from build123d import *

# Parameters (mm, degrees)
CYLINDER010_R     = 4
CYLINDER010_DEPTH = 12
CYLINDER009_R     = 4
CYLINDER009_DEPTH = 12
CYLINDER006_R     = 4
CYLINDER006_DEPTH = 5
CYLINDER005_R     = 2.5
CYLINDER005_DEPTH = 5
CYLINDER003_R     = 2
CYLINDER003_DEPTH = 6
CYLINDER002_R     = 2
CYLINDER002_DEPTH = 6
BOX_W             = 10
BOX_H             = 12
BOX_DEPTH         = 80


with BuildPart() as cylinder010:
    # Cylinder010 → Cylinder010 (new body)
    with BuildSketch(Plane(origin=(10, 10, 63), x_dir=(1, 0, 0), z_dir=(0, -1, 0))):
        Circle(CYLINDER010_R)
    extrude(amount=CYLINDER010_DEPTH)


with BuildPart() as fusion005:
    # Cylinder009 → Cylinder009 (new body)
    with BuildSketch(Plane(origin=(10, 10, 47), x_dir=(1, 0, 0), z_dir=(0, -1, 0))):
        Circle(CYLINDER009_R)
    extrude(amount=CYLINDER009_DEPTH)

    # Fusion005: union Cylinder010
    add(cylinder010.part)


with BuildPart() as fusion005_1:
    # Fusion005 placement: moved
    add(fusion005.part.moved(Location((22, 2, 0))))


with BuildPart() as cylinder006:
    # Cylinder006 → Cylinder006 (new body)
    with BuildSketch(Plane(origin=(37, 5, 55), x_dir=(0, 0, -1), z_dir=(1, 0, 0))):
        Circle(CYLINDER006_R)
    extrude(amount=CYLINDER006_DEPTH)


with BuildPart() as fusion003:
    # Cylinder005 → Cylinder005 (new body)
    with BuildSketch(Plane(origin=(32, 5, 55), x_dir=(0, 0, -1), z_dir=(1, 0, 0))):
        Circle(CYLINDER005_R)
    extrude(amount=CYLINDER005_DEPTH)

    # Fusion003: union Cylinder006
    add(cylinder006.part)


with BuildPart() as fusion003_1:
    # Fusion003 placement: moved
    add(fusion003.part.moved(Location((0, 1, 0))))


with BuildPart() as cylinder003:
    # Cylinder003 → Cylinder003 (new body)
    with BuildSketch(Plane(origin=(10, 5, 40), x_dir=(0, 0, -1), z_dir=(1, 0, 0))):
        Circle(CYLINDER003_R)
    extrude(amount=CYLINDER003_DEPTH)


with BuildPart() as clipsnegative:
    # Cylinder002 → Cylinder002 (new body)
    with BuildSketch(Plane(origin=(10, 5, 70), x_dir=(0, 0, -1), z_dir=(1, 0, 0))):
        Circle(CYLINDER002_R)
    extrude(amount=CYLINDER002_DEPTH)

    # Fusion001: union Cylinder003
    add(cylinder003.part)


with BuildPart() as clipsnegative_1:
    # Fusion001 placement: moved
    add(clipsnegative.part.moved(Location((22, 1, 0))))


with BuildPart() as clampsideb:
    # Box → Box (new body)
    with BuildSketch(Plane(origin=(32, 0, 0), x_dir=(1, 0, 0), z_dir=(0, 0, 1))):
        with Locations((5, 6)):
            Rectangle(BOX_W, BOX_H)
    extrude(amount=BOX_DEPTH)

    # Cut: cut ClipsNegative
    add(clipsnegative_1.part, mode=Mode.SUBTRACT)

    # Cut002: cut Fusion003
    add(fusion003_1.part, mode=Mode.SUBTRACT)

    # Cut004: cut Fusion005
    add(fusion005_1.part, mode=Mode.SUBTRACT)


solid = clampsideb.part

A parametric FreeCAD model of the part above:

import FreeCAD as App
import Part
import Sketcher

V = App.Vector
Q = App.Units.Quantity


def add_polygon(sketch, points):
    """Adds a closed chain of lines whose ends are joined by coincident constraints."""
    first, n = sketch.GeometryCount, len(points)
    for a, b in zip(points, points[1:] + points[:1]):
        sketch.addGeometry(Part.LineSegment(App.Vector(*a, 0), App.Vector(*b, 0)), False)
    for i in range(n):
        sketch.addConstraint(Sketcher.Constraint("Coincident", first + i, 2, first + (i + 1) % n, 1))

doc = App.newDocument("Part")
body = doc.addObject("PartDesign::Body", "Body")

# Sketch on XZ plane
sketch1 = body.newObject("Sketcher::SketchObject", "Sketch")
sketch1.AttachmentSupport = (doc.getObject("XZ_Plane"), [""])
sketch1.MapMode = "FlatFace"
sketch1.AttachmentOffset = App.Placement(V(0, 0, -10), App.Rotation())
sketch1.addGeometry(Part.Circle(V(10, 63, 0), V(0, 0, 1), 4), False)
sketch1.addConstraint(Sketcher.Constraint("Diameter", 0, Q("8 mm")))
sketch1.addConstraint(Sketcher.Constraint("DistanceX", -1, 1, 0, 3, Q("10 mm")))
sketch1.addConstraint(Sketcher.Constraint("DistanceY", -1, 1, 0, 3, Q("63 mm")))
pad1 = body.newObject("PartDesign::Pad", "Pad")
pad1.Profile = sketch1
pad1.Length = 12
body2 = doc.addObject("PartDesign::Body", "Body001")
body2.AllowCompound = True

# Sketch on XZ plane
sketch2 = body2.newObject("Sketcher::SketchObject", "Sketch001")
sketch2.AttachmentSupport = (doc.getObject("XZ_Plane001"), [""])
sketch2.MapMode = "FlatFace"
sketch2.AttachmentOffset = App.Placement(V(0, 0, -10), App.Rotation())
sketch2.addGeometry(Part.Circle(V(10, 47, 0), V(0, 0, 1), 4), False)
sketch2.addConstraint(Sketcher.Constraint("Diameter", 0, Q("8 mm")))
sketch2.addConstraint(Sketcher.Constraint("DistanceX", -1, 1, 0, 3, Q("10 mm")))
sketch2.addConstraint(Sketcher.Constraint("DistanceY", -1, 1, 0, 3, Q("47 mm")))
pad2 = body2.newObject("PartDesign::Pad", "Pad001")
pad2.Profile = sketch2
pad2.Length = 12
doc.recompute()

boolean = body2.newObject("PartDesign::Boolean", "Boolean")
boolean.Type = "Fuse"
boolean.addObjects([body])
body3 = doc.addObject("PartDesign::Body", "Body002")
body3.AllowCompound = True
doc.recompute()

body2.Placement = App.Placement(V(22, 2, 0), App.Rotation(V(0, 0, 1), 0))
boolean2 = body3.newObject("PartDesign::Boolean", "Boolean001")
boolean2.Type = "Fuse"
boolean2.addObjects([body2])
body4 = doc.addObject("PartDesign::Body", "Body003")

# Sketch on YZ plane
sketch3 = body4.newObject("Sketcher::SketchObject", "Sketch002")
sketch3.AttachmentSupport = (doc.getObject("YZ_Plane003"), [""])
sketch3.MapMode = "FlatFace"
sketch3.AttachmentOffset = App.Placement(V(0, 0, 37), App.Rotation())
sketch3.addGeometry(Part.Circle(V(5, 55, 0), V(0, 0, 1), 4), False)
sketch3.addConstraint(Sketcher.Constraint("Diameter", 0, Q("8 mm")))
sketch3.addConstraint(Sketcher.Constraint("DistanceX", -1, 1, 0, 3, Q("5 mm")))
sketch3.addConstraint(Sketcher.Constraint("DistanceY", -1, 1, 0, 3, Q("55 mm")))
pad3 = body4.newObject("PartDesign::Pad", "Pad002")
pad3.Profile = sketch3
pad3.Length = 5
body5 = doc.addObject("PartDesign::Body", "Body004")

# Sketch on YZ plane
sketch4 = body5.newObject("Sketcher::SketchObject", "Sketch003")
sketch4.AttachmentSupport = (doc.getObject("YZ_Plane004"), [""])
sketch4.MapMode = "FlatFace"
sketch4.AttachmentOffset = App.Placement(V(0, 0, 32), App.Rotation())
sketch4.addGeometry(Part.Circle(V(5, 55, 0), V(0, 0, 1), 2.5), False)
sketch4.addConstraint(Sketcher.Constraint("Diameter", 0, Q("5 mm")))
sketch4.addConstraint(Sketcher.Constraint("DistanceX", -1, 1, 0, 3, Q("5 mm")))
sketch4.addConstraint(Sketcher.Constraint("DistanceY", -1, 1, 0, 3, Q("55 mm")))
pad4 = body5.newObject("PartDesign::Pad", "Pad003")
pad4.Profile = sketch4
pad4.Length = 5
doc.recompute()

boolean3 = body5.newObject("PartDesign::Boolean", "Boolean002")
boolean3.Type = "Fuse"
boolean3.addObjects([body4])
body6 = doc.addObject("PartDesign::Body", "Body005")
doc.recompute()

body5.Placement = App.Placement(V(0, 1, 0), App.Rotation(V(0, 0, 1), 0))
boolean4 = body6.newObject("PartDesign::Boolean", "Boolean003")
boolean4.Type = "Fuse"
boolean4.addObjects([body5])
body7 = doc.addObject("PartDesign::Body", "Body006")

# Sketch on YZ plane
sketch5 = body7.newObject("Sketcher::SketchObject", "Sketch004")
sketch5.AttachmentSupport = (doc.getObject("YZ_Plane006"), [""])
sketch5.MapMode = "FlatFace"
sketch5.AttachmentOffset = App.Placement(V(0, 0, 10), App.Rotation())
sketch5.addGeometry(Part.Circle(V(5, 40, 0), V(0, 0, 1), 2), False)
sketch5.addConstraint(Sketcher.Constraint("Diameter", 0, Q("4 mm")))
sketch5.addConstraint(Sketcher.Constraint("DistanceX", -1, 1, 0, 3, Q("5 mm")))
sketch5.addConstraint(Sketcher.Constraint("DistanceY", -1, 1, 0, 3, Q("40 mm")))
pad5 = body7.newObject("PartDesign::Pad", "Pad004")
pad5.Profile = sketch5
pad5.Length = 6
body8 = doc.addObject("PartDesign::Body", "Body007")
body8.AllowCompound = True

# Sketch on YZ plane
sketch6 = body8.newObject("Sketcher::SketchObject", "Sketch005")
sketch6.AttachmentSupport = (doc.getObject("YZ_Plane007"), [""])
sketch6.MapMode = "FlatFace"
sketch6.AttachmentOffset = App.Placement(V(0, 0, 10), App.Rotation())
sketch6.addGeometry(Part.Circle(V(5, 70, 0), V(0, 0, 1), 2), False)
sketch6.addConstraint(Sketcher.Constraint("Diameter", 0, Q("4 mm")))
sketch6.addConstraint(Sketcher.Constraint("DistanceX", -1, 1, 0, 3, Q("5 mm")))
sketch6.addConstraint(Sketcher.Constraint("DistanceY", -1, 1, 0, 3, Q("70 mm")))
pad6 = body8.newObject("PartDesign::Pad", "Pad005")
pad6.Profile = sketch6
pad6.Length = 6
doc.recompute()

boolean5 = body8.newObject("PartDesign::Boolean", "Boolean004")
boolean5.Type = "Fuse"
boolean5.addObjects([body7])
body9 = doc.addObject("PartDesign::Body", "Body008")
body9.AllowCompound = True
doc.recompute()

body8.Placement = App.Placement(V(22, 1, 0), App.Rotation(V(0, 0, 1), 0))
boolean6 = body9.newObject("PartDesign::Boolean", "Boolean005")
boolean6.Type = "Fuse"
boolean6.addObjects([body8])
body10 = doc.addObject("PartDesign::Body", "Body009")

# Sketch on XY plane
sketch7 = body10.newObject("Sketcher::SketchObject", "Sketch006")
sketch7.AttachmentSupport = (doc.getObject("XY_Plane009"), [""])
sketch7.MapMode = "FlatFace"
add_polygon(sketch7, [(32, 12), (32, 0), (42, 0), (42, 12)])  # lines 0-3
sketch7.addConstraint(Sketcher.Constraint("Vertical", 0))
sketch7.addConstraint(Sketcher.Constraint("Horizontal", 1))
sketch7.addConstraint(Sketcher.Constraint("Vertical", 2))
sketch7.addConstraint(Sketcher.Constraint("Horizontal", 3))
sketch7.addConstraint(Sketcher.Constraint("PointOnObject", 0, 2, -1))
sketch7.addConstraint(Sketcher.Constraint("DistanceX", 1, 1, 1, 2, Q("10 mm")))
sketch7.addConstraint(Sketcher.Constraint("DistanceY", 0, 2, 0, 1, Q("12 mm")))
sketch7.addConstraint(Sketcher.Constraint("DistanceX", -1, 1, 0, 2, Q("32 mm")))
pad7 = body10.newObject("PartDesign::Pad", "Pad006")
pad7.Profile = sketch7
pad7.Length = 80
doc.recompute()

boolean7 = body10.newObject("PartDesign::Boolean", "Boolean006")
boolean7.Type = "Cut"
boolean7.addObjects([body9])
doc.recompute()

boolean8 = body10.newObject("PartDesign::Boolean", "Boolean007")
boolean8.Type = "Cut"
boolean8.addObjects([body6])
doc.recompute()

boolean9 = body10.newObject("PartDesign::Boolean", "Boolean008")
boolean9.Type = "Cut"
boolean9.addObjects([body3])

doc.recompute()
